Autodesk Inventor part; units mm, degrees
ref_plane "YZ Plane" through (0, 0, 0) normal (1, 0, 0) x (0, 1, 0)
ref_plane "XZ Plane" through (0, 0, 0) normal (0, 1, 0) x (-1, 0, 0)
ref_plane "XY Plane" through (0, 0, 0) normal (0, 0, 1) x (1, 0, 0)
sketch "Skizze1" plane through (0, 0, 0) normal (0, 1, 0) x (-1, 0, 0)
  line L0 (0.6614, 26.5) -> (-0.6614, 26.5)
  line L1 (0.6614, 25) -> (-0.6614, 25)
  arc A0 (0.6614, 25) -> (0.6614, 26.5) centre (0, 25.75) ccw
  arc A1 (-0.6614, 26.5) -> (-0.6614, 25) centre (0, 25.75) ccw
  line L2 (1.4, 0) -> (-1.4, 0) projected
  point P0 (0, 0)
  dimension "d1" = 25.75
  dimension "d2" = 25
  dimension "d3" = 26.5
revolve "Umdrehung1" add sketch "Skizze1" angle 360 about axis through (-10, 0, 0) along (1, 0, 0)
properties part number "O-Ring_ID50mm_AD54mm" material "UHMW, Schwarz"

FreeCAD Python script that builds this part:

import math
import FreeCAD as App
import Part
import Sketcher
Q = App.Units.Quantity

doc = App.newDocument("Part")
body = doc.addObject("PartDesign::Body", "Body")

# Sketch on XZ plane
sketch1 = doc.addObject("Sketcher::SketchObject", "Sketch")
body.addObject(sketch1)
sketch1.AttachmentSupport = (doc.XZ_Plane, [""])
sketch1.MapMode = "FlatFace"
sketch1.addGeometry([
    Part.ArcOfCircle(Part.Circle(App.Vector(0, 25.8, 0), App.Vector(0, 0, 1), 1), math.radians(131), math.radians(229)),
    Part.LineSegment(App.Vector(-0.7, 26.5, 0), App.Vector(0.7, 26.5, 0)),
    Part.ArcOfCircle(Part.Circle(App.Vector(0, 25.8, 0), App.Vector(0, 0, 1), 1), math.radians(-49), math.radians(49)),
    Part.LineSegment(App.Vector(0.7, 25, 0), App.Vector(-0.7, 25, 0)),
], False)
sketch1.addConstraint([
    Sketcher.Constraint("Coincident", 0, 1, 1, 1),
    Sketcher.Constraint("Coincident", 1, 2, 2, 2),
    Sketcher.Constraint("Coincident", 2, 1, 3, 1),
    Sketcher.Constraint("Coincident", 3, 2, 0, 2),
    Sketcher.Constraint("Horizontal", 1),
    Sketcher.Constraint("Horizontal", 3),
    Sketcher.Constraint("Coincident", 2, 3, 0, 3),
    Sketcher.Constraint("Equal", 0, 2),
    Sketcher.Constraint("PointOnObject", 0, 3, -2),
    Sketcher.Constraint("Vertical", 1, 2, 2, 1),
    Sketcher.Constraint("DistanceY", -1, 1, 2, 1, Q("25 mm")),
    Sketcher.Constraint("Radius", 0, Q("1 mm")),
    Sketcher.Constraint("DistanceY", -1, 1, 0, 1, Q("26.5 mm")),
])
revolution = doc.addObject("PartDesign::Revolution", "Revolution")
body.addObject(revolution)
revolution.Profile = sketch1
revolution.ReferenceAxis = (sketch1, ["H_Axis"])
revolution.Angle = 360

doc.recompute()
